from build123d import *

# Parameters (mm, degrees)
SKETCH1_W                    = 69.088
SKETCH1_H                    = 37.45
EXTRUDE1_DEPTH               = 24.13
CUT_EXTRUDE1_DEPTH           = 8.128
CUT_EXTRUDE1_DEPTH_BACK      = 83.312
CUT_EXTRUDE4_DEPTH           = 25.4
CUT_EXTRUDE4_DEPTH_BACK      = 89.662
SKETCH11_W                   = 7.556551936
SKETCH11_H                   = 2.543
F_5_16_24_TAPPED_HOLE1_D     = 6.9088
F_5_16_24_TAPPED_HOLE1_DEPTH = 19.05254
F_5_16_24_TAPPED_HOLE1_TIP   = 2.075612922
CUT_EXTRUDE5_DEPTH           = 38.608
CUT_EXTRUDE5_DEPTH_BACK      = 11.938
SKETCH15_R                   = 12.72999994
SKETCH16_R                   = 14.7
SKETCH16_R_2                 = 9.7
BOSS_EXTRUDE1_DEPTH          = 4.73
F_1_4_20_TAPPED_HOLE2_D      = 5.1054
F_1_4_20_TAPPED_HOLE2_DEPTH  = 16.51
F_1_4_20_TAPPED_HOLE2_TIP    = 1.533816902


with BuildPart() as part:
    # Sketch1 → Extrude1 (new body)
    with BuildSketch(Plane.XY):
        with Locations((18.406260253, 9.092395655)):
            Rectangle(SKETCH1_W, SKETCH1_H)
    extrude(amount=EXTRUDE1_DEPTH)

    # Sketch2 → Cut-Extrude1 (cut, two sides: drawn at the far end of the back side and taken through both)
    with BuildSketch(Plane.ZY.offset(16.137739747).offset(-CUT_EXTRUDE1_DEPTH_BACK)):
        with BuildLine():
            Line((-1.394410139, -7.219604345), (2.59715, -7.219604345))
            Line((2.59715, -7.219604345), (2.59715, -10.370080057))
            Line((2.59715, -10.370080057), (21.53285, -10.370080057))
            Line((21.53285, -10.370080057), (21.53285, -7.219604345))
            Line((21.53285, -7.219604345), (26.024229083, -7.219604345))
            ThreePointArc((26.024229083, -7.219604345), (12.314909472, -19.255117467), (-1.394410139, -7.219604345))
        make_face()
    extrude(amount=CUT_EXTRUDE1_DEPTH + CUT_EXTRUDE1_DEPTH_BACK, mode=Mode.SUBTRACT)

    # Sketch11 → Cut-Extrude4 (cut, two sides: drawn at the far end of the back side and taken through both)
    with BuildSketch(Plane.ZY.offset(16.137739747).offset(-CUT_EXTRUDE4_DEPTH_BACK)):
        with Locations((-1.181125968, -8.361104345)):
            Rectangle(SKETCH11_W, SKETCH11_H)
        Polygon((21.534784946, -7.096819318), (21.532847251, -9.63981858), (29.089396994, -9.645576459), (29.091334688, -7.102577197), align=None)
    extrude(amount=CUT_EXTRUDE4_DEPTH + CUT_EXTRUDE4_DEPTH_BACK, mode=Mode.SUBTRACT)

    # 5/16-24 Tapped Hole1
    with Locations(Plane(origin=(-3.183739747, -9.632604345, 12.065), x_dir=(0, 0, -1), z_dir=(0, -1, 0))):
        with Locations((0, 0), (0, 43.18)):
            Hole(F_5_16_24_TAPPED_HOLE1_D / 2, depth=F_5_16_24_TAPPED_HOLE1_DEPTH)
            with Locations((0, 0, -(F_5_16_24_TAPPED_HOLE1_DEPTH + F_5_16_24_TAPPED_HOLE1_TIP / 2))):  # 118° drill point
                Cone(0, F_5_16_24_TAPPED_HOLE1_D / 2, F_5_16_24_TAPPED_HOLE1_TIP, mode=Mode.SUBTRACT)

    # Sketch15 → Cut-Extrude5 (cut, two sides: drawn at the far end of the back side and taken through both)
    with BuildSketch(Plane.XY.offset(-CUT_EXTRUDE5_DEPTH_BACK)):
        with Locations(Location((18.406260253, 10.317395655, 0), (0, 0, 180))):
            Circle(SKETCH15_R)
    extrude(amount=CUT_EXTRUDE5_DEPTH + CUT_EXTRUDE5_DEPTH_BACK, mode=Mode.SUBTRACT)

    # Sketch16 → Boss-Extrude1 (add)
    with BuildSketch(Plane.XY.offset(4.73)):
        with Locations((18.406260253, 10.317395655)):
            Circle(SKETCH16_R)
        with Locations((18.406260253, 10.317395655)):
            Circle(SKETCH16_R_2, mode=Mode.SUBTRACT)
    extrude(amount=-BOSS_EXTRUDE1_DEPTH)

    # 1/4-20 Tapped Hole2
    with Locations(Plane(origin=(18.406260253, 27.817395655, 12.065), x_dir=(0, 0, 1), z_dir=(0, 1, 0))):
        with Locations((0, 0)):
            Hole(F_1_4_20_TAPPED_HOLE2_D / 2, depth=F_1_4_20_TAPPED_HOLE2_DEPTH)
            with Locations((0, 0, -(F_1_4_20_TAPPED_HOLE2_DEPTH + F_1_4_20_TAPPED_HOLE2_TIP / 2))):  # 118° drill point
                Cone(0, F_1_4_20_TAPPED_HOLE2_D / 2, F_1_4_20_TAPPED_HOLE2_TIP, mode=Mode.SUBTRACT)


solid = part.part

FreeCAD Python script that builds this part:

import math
import FreeCAD as App
import Part
import Sketcher
from FreeCAD import Vector
Q = App.Units.Quantity

doc = App.newDocument("Part")
body = doc.addObject("PartDesign::Body", "Body")

# Sketch on XY plane
sketch1 = body.newObject("Sketcher::SketchObject", "Sketch")
sketch1.AttachmentSupport = (doc.getObject("XY_Plane"), [""])
sketch1.MapMode = "FlatFace"
sketch1.addGeometry([
    Part.LineSegment(Vector(-16.13774, 27.817396, 0), Vector(-16.13774, -9.632604, 0)),
    Part.LineSegment(Vector(-16.13774, -9.632604, 0), Vector(52.95026, -9.632604, 0)),
    Part.LineSegment(Vector(52.95026, -9.632604, 0), Vector(52.95026, 27.817396, 0)),
    Part.LineSegment(Vector(52.95026, 27.817396, 0), Vector(-16.13774, 27.817396, 0)),
], False)
sketch1.addConstraint([
    Sketcher.Constraint("Coincident", 0, 2, 1, 1),
    Sketcher.Constraint("Coincident", 1, 2, 2, 1),
    Sketcher.Constraint("Coincident", 2, 2, 3, 1),
    Sketcher.Constraint("Coincident", 3, 2, 0, 1),
    Sketcher.Constraint("Vertical", 0),
    Sketcher.Constraint("Horizontal", 1),
    Sketcher.Constraint("Vertical", 2),
    Sketcher.Constraint("Horizontal", 3),
    Sketcher.Constraint("DistanceX", 1, 1, 1, 2, Q("2.72 in")),
    Sketcher.Constraint("DistanceY", 0, 2, 0, 1, Q("37.45 mm")),
    Sketcher.Constraint("DistanceX", 0, 2, -1, 1, Q("16.13774 mm")),
    Sketcher.Constraint("DistanceY", 0, 2, -1, 1, Q("9.632604 mm")),
])
pad1 = body.newObject("PartDesign::Pad", "Pad")
pad1.Profile = sketch1
pad1.Length = Q("0.95 in")

# Sketch on YZ plane
sketch2 = body.newObject("Sketcher::SketchObject", "Sketch001")
sketch2.AttachmentSupport = (doc.getObject("YZ_Plane"), [""])
sketch2.MapMode = "FlatFace"
sketch2.AttachmentOffset = App.Placement(Vector(0, 0, -16.13774), App.Rotation())
sketch2.addGeometry([
    Part.LineSegment(Vector(-7.219604, 2.59715, 0), Vector(-7.219604, -1.39441, 0)),  # 0
    Part.ArcOfCircle(Part.Circle(Vector(-5.429408, 12.314909, 0), Vector(0, 0, 1), 13.82571), math.radians(97.439727), math.radians(262.560273)),  # 1
    Part.LineSegment(Vector(-7.219604, 26.024229, 0), Vector(-7.219604, 21.53285, 0)),  # 2
    Part.LineSegment(Vector(-7.219604, 21.53285, 0), Vector(-10.37008, 21.53285, 0)),  # 3
    Part.LineSegment(Vector(-10.37008, 21.53285, 0), Vector(-10.37008, 2.59715, 0)),  # 4
    Part.LineSegment(Vector(-10.37008, 2.59715, 0), Vector(-7.219604, 2.59715, 0)),  # 5
], False)
sketch2.addConstraint([
    Sketcher.Constraint("Coincident", 0, 2, 1, 2),
    Sketcher.Constraint("Coincident", 1, 1, 2, 1),
    Sketcher.Constraint("Coincident", 2, 2, 3, 1),
    Sketcher.Constraint("Coincident", 3, 2, 4, 1),
    Sketcher.Constraint("Coincident", 4, 2, 5, 1),
    Sketcher.Constraint("Coincident", 5, 2, 0, 1),
    Sketcher.Constraint("Vertical", 0),
    Sketcher.Constraint("Vertical", 2),
    Sketcher.Constraint("Horizontal", 3),
    Sketcher.Constraint("Vertical", 4),
    Sketcher.Constraint("Horizontal", 5),
    Sketcher.Constraint("Vertical", 0, 2, 1, 1),
    Sketcher.Constraint("DistanceY", 4, 2, 4, 1, Q("0.7455 in")),
    Sketcher.Constraint("Radius", 1, Q("13.82571 mm")),
    Sketcher.Constraint("DistanceY", 0, 2, 0, 1, Q("3.99156 mm")),
    Sketcher.Constraint("DistanceY", 2, 2, 2, 1, Q("4.491379 mm")),
    Sketcher.Constraint("DistanceX", 3, 2, 3, 1, Q("3.150476 mm")),
    Sketcher.Constraint("DistanceY", -1, 1, 1, 3, Q("12.314909 mm")),
    Sketcher.Constraint("DistanceX", 3, 2, -1, 1, Q("10.37008 mm")),
])
pocket1 = body.newObject("PartDesign::Pocket", "Pocket")
pocket1.Profile = sketch2
pocket1.Type = "ThroughAll"
pocket1.Midplane = True

# Sketch on YZ plane
sketch3 = body.newObject("Sketcher::SketchObject", "Sketch002")
sketch3.AttachmentSupport = (doc.getObject("YZ_Plane"), [""])
sketch3.MapMode = "FlatFace"
sketch3.AttachmentOffset = App.Placement(Vector(0, 0, -16.13774), App.Rotation())
sketch3.addGeometry([
    Part.LineSegment(Vector(-7.089604, -4.959402, 0), Vector(-9.632604, -4.959402, 0)),  # 0
    Part.LineSegment(Vector(-9.632604, -4.959402, 0), Vector(-9.632604, 2.59715, 0)),  # 1
    Part.LineSegment(Vector(-9.632604, 2.59715, 0), Vector(-7.089604, 2.59715, 0)),  # 2
    Part.LineSegment(Vector(-7.089604, 2.59715, 0), Vector(-7.089604, -4.959402, 0)),  # 3
    Part.LineSegment(Vector(-7.096819, 21.534785, 0), Vector(-9.639819, 21.532847, 0)),  # 4
    Part.LineSegment(Vector(-9.639819, 21.532847, 0), Vector(-9.645576, 29.089397, 0)),  # 5
    Part.LineSegment(Vector(-9.645576, 29.089397, 0), Vector(-7.102577, 29.091335, 0)),  # 6
    Part.LineSegment(Vector(-7.102577, 29.091335, 0), Vector(-7.096819, 21.534785, 0)),  # 7
], False)
sketch3.addConstraint([
    Sketcher.Constraint("Coincident", 0, 2, 1, 1),
    Sketcher.Constraint("Coincident", 1, 2, 2, 1),
    Sketcher.Constraint("Coincident", 2, 2, 3, 1),
    Sketcher.Constraint("Coincident", 3, 2, 0, 1),
    Sketcher.Constraint("Coincident", 4, 2, 5, 1),
    Sketcher.Constraint("Coincident", 5, 2, 6, 1),
    Sketcher.Constraint("Coincident", 6, 2, 7, 1),
    Sketcher.Constraint("Coincident", 7, 2, 4, 1),
    Sketcher.Constraint("Horizontal", 0),
    Sketcher.Constraint("Vertical", 1),
    Sketcher.Constraint("Horizontal", 2),
    Sketcher.Constraint("Vertical", 3),
    Sketcher.Constraint("Perpendicular", 4, 5),
    Sketcher.Constraint("Perpendicular", 5, 6),
    Sketcher.Constraint("Perpendicular", 6, 7),
    Sketcher.Constraint("DistanceX", 0, 2, 0, 1, Q("2.543 mm")),
    Sketcher.Constraint("DistanceY", 1, 2, 4, 2, Q("0.7454999 in")),
    Sketcher.Constraint("Distance", 4, Q("2.543 mm")),
    Sketcher.Constraint("DistanceY", 1, 1, 1, 2, Q("7.556552 mm")),
    Sketcher.Constraint("DistanceY", 0, 2, -1, 1, Q("4.959402 mm")),
    Sketcher.Constraint("DistanceY", 0, 2, 5, 2, Q("34.048799 mm")),
    Sketcher.Constraint("DistanceX", 4, 2, -1, 1, Q("9.639819 mm")),
    Sketcher.Constraint("DistanceX", 4, 2, 6, 2, Q("2.537241 mm")),
    Sketcher.Constraint("DistanceX", 0, 2, -1, 1, Q("9.632604 mm")),
])
pocket2 = body.newObject("PartDesign::Pocket", "Pocket001")
pocket2.Profile = sketch3
pocket2.Type = "ThroughAll"
pocket2.Midplane = True

# Sketch on XZ plane
sketch4 = body.newObject("Sketcher::SketchObject", "Sketch003")
sketch4.AttachmentSupport = (doc.getObject("XZ_Plane"), [""])
sketch4.MapMode = "FlatFace"
sketch4.AttachmentOffset = App.Placement(Vector(0, 0, 9.632604), App.Rotation())
sketch4.addGeometry([
    Part.Circle(Vector(-3.18374, 12.065, 0), Vector(0, 0, 1), 3.4544),
    Part.Circle(Vector(39.99626, 12.065, 0), Vector(0, 0, 1), 3.4544),
], False)
sketch4.addConstraint([
    Sketcher.Constraint("Equal", 0, 1),
    Sketcher.Constraint("Horizontal", 0, 3, 1, 3),
    Sketcher.Constraint("Diameter", 0, Q("0.272 in")),
    Sketcher.Constraint("DistanceX", 0, 3, 1, 3, Q("1.7 in")),
    Sketcher.Constraint("DistanceY", -1, 1, 0, 3, Q("0.475 in")),
    Sketcher.Constraint("DistanceX", 0, 3, -1, 1, Q("3.18374 mm")),
])
doc.recompute()
hole = body.newObject("PartDesign::Hole", "Hole")
hole.Profile = sketch4
hole.ThreadType = "None"
hole.Diameter = Q("0.272 in")
hole.DepthType = "Dimension"
hole.Depth = Q("0.7501 in")
hole.DrillPoint = "Angled"
hole.DrillPointAngle = 118

# Sketch on XY plane
sketch5 = body.newObject("Sketcher::SketchObject", "Sketch004")
sketch5.AttachmentSupport = (doc.getObject("XY_Plane"), [""])
sketch5.MapMode = "FlatFace"
sketch5.addGeometry(Part.Circle(Vector(18.40626, 10.317396, 0), Vector(0, 0, 1), 12.73), False)
sketch5.addConstraint([
    Sketcher.Constraint("Diameter", 0, Q("25.46 mm")),
    Sketcher.Constraint("DistanceX", -1, 1, 0, 3, Q("18.40626 mm")),
    Sketcher.Constraint("DistanceY", -1, 1, 0, 3, Q("10.317396 mm")),
])
pocket3 = body.newObject("PartDesign::Pocket", "Pocket002")
pocket3.Profile = sketch5
pocket3.Type = "ThroughAll"
pocket3.Midplane = True

# Sketch on XY plane
sketch6 = body.newObject("Sketcher::SketchObject", "Sketch005")
sketch6.AttachmentSupport = (doc.getObject("XY_Plane"), [""])
sketch6.MapMode = "FlatFace"
sketch6.AttachmentOffset = App.Placement(Vector(0, 0, 4.73), App.Rotation())
sketch6.addGeometry([
    Part.Circle(Vector(18.40626, 10.317396, 0), Vector(0, 0, 1), 14.7),
    Part.Circle(Vector(18.40626, 10.317396, 0), Vector(0, 0, 1), 9.7),
], False)
sketch6.addConstraint([
    Sketcher.Constraint("Coincident", 1, 3, 0, 3),
    Sketcher.Constraint("Diameter", 0, Q("29.4 mm")),
    Sketcher.Constraint("Diameter", 1, Q("19.4 mm")),
    Sketcher.Constraint("DistanceX", -1, 1, 0, 3, Q("18.40626 mm")),
    Sketcher.Constraint("DistanceY", -1, 1, 0, 3, Q("10.317396 mm")),
])
pad2 = body.newObject("PartDesign::Pad", "Pad001")
pad2.Profile = sketch6
pad2.Length = 4.73
pad2.Reversed = True

# Sketch on XZ plane
sketch7 = body.newObject("Sketcher::SketchObject", "Sketch006")
sketch7.AttachmentSupport = (doc.getObject("XZ_Plane"), [""])
sketch7.MapMode = "FlatFace"
sketch7.AttachmentOffset = App.Placement(Vector(0, 0, -27.817396), App.Rotation())
sketch7.addGeometry(Part.Circle(Vector(18.40626, 12.065, 0), Vector(0, 0, 1), 2.5527), False)
sketch7.addConstraint([
    Sketcher.Constraint("Diameter", 0, Q("0.201 in")),
    Sketcher.Constraint("DistanceY", -1, 1, 0, 3, Q("0.475 in")),
    Sketcher.Constraint("DistanceX", -1, 1, 0, 3, Q("18.40626 mm")),
])
doc.recompute()
hole2 = body.newObject("PartDesign::Hole", "Hole001")
hole2.Profile = sketch7
hole2.ThreadType = "None"
hole2.Diameter = Q("0.201 in")
hole2.DepthType = "Dimension"
hole2.Depth = Q("0.65 in")
hole2.DrillPoint = "Angled"
hole2.DrillPointAngle = 118
hole2.Reversed = True

doc.recompute()
